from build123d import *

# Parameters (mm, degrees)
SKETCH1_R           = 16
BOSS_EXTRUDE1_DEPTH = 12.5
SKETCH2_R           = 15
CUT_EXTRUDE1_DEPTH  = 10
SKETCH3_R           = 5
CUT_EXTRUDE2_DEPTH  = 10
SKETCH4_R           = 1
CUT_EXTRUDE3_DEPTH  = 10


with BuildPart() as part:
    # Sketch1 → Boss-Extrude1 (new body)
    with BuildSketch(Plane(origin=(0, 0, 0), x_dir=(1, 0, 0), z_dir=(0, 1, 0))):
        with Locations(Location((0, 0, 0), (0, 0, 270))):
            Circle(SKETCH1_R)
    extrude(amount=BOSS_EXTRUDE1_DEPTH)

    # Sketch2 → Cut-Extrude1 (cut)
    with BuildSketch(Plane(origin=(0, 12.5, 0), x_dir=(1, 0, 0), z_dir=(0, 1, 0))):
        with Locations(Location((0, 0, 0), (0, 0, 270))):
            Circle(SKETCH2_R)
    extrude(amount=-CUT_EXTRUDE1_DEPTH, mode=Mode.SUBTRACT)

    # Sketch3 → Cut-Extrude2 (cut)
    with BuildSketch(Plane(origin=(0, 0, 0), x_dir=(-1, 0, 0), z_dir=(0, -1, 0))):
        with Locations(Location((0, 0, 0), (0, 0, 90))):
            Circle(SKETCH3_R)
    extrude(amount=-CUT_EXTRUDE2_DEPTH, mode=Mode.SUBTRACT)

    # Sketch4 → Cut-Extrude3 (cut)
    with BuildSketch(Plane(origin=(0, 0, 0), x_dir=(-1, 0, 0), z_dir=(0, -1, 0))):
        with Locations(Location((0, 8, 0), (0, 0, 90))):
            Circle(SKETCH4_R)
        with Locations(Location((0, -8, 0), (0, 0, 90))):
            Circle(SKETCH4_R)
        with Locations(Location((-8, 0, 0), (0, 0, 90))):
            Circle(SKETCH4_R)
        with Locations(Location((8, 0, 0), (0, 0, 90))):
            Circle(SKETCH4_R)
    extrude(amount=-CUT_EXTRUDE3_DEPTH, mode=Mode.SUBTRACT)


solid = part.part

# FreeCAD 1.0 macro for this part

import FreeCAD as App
import Part
import Sketcher

doc = App.newDocument("Part")
params = doc.addObject("Spreadsheet::Sheet", "Params")
for row, (alias, value) in enumerate([
    ("sketch1_diameter", "32 mm"),
    ("pad1_length", "12.5 mm"),
    ("sketch2_diameter", "30 mm"),
    ("pocket1_length", "10 mm"),
    ("sketch3_diameter", "10 mm"),
    ("pocket2_length", "10 mm"),
    ("sketch4_diameter", "2 mm"),
    ("pocket3_length", "10 mm"),
], start=1):
    params.set(f"A{row}", alias)
    params.set(f"B{row}", "=" + value)
    params.setAlias(f"B{row}", alias)

body = doc.addObject("PartDesign::Body", "Body")

sketch1 = body.newObject("Sketcher::SketchObject", "Sketch")
sketch1.AttachmentSupport = (doc.getObject("XZ_Plane"), [""])
sketch1.MapMode = "FlatFace"
sketch1.addGeometry(Part.Circle(App.Vector(0, 0, 0), App.Vector(0, 0, 1), 16), False)
sketch1.addConstraint([
    Sketcher.Constraint("Coincident", 0, 3, -1, 1),
    Sketcher.Constraint("Diameter", 0, 32.0),
])
sketch1.setExpression("Constraints[1]", "Params.sketch1_diameter")
pad1 = body.newObject("PartDesign::Pad", "Pad")
pad1.Profile = sketch1
pad1.setExpression("Length", "Params.pad1_length")
pad1.Reversed = True

sketch2 = body.newObject("Sketcher::SketchObject", "Sketch001")
sketch2.AttachmentSupport = (doc.getObject("XZ_Plane"), [""])
sketch2.MapMode = "FlatFace"
sketch2.AttachmentOffset = App.Placement(App.Vector(0, 0, -12.5), App.Rotation())
sketch2.addGeometry(Part.Circle(App.Vector(0, 0, 0), App.Vector(0, 0, 1), 15), False)
sketch2.addConstraint([
    Sketcher.Constraint("Coincident", 0, 3, -1, 1),
    Sketcher.Constraint("Diameter", 0, 30.0),
])
sketch2.setExpression("Constraints[1]", "Params.sketch2_diameter")
pocket1 = body.newObject("PartDesign::Pocket", "Pocket")
pocket1.Profile = sketch2
pocket1.setExpression("Length", "Params.pocket1_length")
pocket1.Reversed = True

sketch3 = body.newObject("Sketcher::SketchObject", "Sketch002")
sketch3.AttachmentSupport = (doc.getObject("XZ_Plane"), [""])
sketch3.MapMode = "FlatFace"
sketch3.addGeometry(Part.Circle(App.Vector(0, 0, 0), App.Vector(0, 0, 1), 5), False)
sketch3.addConstraint([
    Sketcher.Constraint("Coincident", 0, 3, -1, 1),
    Sketcher.Constraint("Diameter", 0, 10.0),
])
sketch3.setExpression("Constraints[1]", "Params.sketch3_diameter")
pocket2 = body.newObject("PartDesign::Pocket", "Pocket001")
pocket2.Profile = sketch3
pocket2.setExpression("Length", "Params.pocket2_length")

sketch4 = body.newObject("Sketcher::SketchObject", "Sketch003")
sketch4.AttachmentSupport = (doc.getObject("XZ_Plane"), [""])
sketch4.MapMode = "FlatFace"
sketch4.addGeometry([
    Part.Circle(App.Vector(0, -8, 0), App.Vector(0, 0, 1), 1),
    Part.Circle(App.Vector(0, 8, 0), App.Vector(0, 0, 1), 1),
    Part.Circle(App.Vector(8, 0, 0), App.Vector(0, 0, 1), 1),
    Part.Circle(App.Vector(-8, 0, 0), App.Vector(0, 0, 1), 1),
], False)
sketch4.addConstraint([
    Sketcher.Constraint("Equal", 0, 1),
    Sketcher.Constraint("Equal", 1, 2),
    Sketcher.Constraint("Equal", 2, 3),
    Sketcher.Constraint("Symmetric", 0, 3, 1, 3, -1, 1),
    Sketcher.Constraint("Symmetric", 2, 3, 3, 3, -1, 1),
    Sketcher.Constraint("PointOnObject", 0, 3, -2),
    Sketcher.Constraint("PointOnObject", 2, 3, -1),
    Sketcher.Constraint("Diameter", 0, 2.0),
    Sketcher.Constraint("DistanceY", 0, 3, -1, 1, 8.0),
    Sketcher.Constraint("DistanceX", -1, 1, 2, 3, 8.0),
])
sketch4.setExpression("Constraints[7]", "Params.sketch4_diameter")
pocket3 = body.newObject("PartDesign::Pocket", "Pocket002")
pocket3.Profile = sketch4
pocket3.setExpression("Length", "Params.pocket3_length")

doc.recompute()
